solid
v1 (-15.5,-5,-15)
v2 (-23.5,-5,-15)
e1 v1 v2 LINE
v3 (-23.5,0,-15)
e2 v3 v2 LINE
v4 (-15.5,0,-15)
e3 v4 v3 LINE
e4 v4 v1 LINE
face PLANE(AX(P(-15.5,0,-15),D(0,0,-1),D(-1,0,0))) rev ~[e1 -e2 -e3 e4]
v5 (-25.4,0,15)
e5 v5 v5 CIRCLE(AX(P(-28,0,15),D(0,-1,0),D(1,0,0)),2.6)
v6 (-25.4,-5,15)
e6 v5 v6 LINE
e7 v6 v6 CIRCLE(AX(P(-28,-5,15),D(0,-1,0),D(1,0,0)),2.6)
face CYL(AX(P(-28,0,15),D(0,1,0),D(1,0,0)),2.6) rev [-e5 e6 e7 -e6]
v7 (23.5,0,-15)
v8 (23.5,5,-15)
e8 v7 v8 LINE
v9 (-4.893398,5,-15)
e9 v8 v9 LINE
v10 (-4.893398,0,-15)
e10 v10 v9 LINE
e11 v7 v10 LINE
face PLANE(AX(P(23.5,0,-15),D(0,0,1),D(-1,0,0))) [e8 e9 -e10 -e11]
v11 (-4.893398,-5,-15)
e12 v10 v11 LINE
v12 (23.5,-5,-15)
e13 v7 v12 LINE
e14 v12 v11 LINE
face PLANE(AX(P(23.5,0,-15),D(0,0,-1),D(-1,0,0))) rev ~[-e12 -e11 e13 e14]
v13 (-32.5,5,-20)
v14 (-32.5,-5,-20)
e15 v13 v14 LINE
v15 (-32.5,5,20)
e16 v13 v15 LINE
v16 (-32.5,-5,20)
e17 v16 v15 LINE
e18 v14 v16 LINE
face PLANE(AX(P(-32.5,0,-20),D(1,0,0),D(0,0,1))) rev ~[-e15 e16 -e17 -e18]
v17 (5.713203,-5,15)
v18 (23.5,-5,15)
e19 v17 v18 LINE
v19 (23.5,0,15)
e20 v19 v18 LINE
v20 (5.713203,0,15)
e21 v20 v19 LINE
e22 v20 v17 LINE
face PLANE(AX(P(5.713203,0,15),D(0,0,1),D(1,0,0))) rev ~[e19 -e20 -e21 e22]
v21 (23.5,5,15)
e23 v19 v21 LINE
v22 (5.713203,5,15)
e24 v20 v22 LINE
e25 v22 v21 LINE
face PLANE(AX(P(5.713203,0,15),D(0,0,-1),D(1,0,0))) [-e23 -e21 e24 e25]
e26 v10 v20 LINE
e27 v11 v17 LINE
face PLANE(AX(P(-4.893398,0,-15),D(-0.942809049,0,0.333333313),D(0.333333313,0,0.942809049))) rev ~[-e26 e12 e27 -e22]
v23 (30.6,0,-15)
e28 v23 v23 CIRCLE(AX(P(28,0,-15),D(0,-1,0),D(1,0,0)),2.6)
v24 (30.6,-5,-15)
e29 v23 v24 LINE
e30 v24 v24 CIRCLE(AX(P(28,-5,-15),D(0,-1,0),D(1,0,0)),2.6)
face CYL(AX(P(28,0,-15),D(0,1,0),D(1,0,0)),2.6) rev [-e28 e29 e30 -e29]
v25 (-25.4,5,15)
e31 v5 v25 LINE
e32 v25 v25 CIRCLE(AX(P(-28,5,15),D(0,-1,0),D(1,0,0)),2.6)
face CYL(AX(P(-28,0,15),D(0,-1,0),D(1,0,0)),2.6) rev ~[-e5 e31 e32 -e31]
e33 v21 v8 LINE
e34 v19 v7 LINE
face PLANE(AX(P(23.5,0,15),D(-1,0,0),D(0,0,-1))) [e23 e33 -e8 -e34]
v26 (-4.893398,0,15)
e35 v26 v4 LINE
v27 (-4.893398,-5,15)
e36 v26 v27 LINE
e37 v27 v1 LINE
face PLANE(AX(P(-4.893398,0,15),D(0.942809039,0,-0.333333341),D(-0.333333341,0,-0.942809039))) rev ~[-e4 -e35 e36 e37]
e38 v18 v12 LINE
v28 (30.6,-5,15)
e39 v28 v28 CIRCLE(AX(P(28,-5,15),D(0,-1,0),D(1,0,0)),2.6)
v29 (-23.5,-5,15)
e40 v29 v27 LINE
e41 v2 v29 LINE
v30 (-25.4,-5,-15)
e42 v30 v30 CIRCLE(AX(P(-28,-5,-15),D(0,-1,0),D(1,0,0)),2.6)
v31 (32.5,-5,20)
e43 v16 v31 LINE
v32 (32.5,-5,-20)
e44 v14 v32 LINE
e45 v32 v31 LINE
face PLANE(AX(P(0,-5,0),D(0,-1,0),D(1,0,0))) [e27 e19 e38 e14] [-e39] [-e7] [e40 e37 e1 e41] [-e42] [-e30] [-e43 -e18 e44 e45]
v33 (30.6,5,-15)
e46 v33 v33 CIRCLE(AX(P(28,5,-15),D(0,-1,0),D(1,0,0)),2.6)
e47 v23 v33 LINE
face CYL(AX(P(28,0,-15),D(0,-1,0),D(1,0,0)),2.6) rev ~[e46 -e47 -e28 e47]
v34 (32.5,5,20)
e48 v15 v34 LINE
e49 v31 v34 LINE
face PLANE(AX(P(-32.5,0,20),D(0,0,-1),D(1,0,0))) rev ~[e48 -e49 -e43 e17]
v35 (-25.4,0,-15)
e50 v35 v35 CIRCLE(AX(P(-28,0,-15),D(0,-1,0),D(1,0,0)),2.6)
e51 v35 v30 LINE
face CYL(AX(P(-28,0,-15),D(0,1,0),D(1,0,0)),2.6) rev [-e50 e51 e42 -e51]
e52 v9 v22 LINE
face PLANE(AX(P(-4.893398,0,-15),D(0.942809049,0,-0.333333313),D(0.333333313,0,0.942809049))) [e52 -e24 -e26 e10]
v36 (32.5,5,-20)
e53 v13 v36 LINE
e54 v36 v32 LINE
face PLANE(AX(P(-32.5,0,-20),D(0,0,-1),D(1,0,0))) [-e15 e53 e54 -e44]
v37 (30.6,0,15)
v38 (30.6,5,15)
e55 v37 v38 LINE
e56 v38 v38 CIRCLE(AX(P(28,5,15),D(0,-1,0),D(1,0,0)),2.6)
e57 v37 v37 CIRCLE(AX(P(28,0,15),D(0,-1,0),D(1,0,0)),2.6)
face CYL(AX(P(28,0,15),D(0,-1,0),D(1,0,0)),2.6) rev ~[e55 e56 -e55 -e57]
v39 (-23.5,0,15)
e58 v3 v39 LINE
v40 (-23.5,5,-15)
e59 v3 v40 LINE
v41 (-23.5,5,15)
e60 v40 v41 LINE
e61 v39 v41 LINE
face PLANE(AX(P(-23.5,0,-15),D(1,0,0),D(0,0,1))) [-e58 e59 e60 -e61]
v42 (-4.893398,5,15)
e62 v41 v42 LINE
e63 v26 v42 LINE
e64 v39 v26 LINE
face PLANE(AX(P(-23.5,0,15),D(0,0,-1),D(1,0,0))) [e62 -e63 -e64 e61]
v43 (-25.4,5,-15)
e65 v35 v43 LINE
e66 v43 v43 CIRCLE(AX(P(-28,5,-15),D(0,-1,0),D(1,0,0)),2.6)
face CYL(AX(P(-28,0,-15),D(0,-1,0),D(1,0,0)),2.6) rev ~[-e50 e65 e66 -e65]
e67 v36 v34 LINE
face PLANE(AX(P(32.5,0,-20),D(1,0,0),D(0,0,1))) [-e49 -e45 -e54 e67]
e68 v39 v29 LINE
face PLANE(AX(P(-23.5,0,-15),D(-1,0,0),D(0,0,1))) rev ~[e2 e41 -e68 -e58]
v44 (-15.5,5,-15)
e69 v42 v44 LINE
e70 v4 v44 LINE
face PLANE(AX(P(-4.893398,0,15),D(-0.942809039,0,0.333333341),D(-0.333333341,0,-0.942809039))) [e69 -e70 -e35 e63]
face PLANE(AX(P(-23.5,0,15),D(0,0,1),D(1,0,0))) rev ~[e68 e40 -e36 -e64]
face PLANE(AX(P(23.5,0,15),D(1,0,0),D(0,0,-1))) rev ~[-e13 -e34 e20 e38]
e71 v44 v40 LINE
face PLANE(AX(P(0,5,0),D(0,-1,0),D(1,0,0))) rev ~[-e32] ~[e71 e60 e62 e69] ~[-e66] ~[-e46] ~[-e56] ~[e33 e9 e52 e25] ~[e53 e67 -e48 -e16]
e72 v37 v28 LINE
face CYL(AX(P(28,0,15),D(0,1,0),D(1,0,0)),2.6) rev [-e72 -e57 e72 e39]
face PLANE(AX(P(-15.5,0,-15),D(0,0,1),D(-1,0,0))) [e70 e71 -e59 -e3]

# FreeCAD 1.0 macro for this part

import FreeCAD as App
import Part
import Sketcher

V = App.Vector
Q = App.Units.Quantity

doc = App.newDocument("Part")
body = doc.addObject("PartDesign::Body", "Body")

sketch1 = body.newObject("Sketcher::SketchObject", "Sketch")
sketch1.AttachmentSupport = (doc.getObject("XZ_Plane"), [""])
sketch1.MapMode = "FlatFace"
sketch1.addGeometry(Part.LineSegment(V(-32.5, 20, 0), V(-32.5, -20, 0)), False)
sketch1.addGeometry(Part.LineSegment(V(-32.5, -20, 0), V(32.5, -20, 0)), False)
sketch1.addGeometry(Part.LineSegment(V(32.5, -20, 0), V(32.5, 20, 0)), False)
sketch1.addGeometry(Part.LineSegment(V(32.5, 20, 0), V(-32.5, 20, 0)), False)
sketch1.addGeometry(Part.Circle(V(-28, -15, 0), V(0, 0, 1), 2.6), False)
sketch1.addGeometry(Part.Circle(V(28, -15, 0), V(0, 0, 1), 2.6), False)
sketch1.addGeometry(Part.LineSegment(V(-15.5, -15, 0), V(-23.5, -15, 0)), False)
sketch1.addGeometry(Part.LineSegment(V(-23.5, -15, 0), V(-23.5, 15, 0)), False)
sketch1.addGeometry(Part.LineSegment(V(-23.5, 15, 0), V(-4.9, 15, 0)), False)
sketch1.addGeometry(Part.LineSegment(V(-4.9, 15, 0), V(-15.5, -15, 0)), False)
sketch1.addGeometry(Part.Circle(V(-28, 15, 0), V(0, 0, 1), 2.6), False)
sketch1.addGeometry(Part.LineSegment(V(23.5, 15, 0), V(23.5, -15, 0)), False)
sketch1.addGeometry(Part.LineSegment(V(23.5, -15, 0), V(-4.9, -15, 0)), False)
sketch1.addGeometry(Part.LineSegment(V(-4.9, -15, 0), V(5.7, 15, 0)), False)
sketch1.addGeometry(Part.LineSegment(V(5.7, 15, 0), V(23.5, 15, 0)), False)
sketch1.addGeometry(Part.Circle(V(28, 15, 0), V(0, 0, 1), 2.6), False)
sketch1.addConstraint(Sketcher.Constraint("Coincident", 0, 2, 1, 1))
sketch1.addConstraint(Sketcher.Constraint("Coincident", 1, 2, 2, 1))
sketch1.addConstraint(Sketcher.Constraint("Coincident", 2, 2, 3, 1))
sketch1.addConstraint(Sketcher.Constraint("Coincident", 3, 2, 0, 1))
sketch1.addConstraint(Sketcher.Constraint("Coincident", 6, 2, 7, 1))
sketch1.addConstraint(Sketcher.Constraint("Coincident", 7, 2, 8, 1))
sketch1.addConstraint(Sketcher.Constraint("Coincident", 8, 2, 9, 1))
sketch1.addConstraint(Sketcher.Constraint("Coincident", 9, 2, 6, 1))
sketch1.addConstraint(Sketcher.Constraint("Coincident", 11, 2, 12, 1))
sketch1.addConstraint(Sketcher.Constraint("Coincident", 12, 2, 13, 1))
sketch1.addConstraint(Sketcher.Constraint("Coincident", 13, 2, 14, 1))
sketch1.addConstraint(Sketcher.Constraint("Coincident", 14, 2, 11, 1))
sketch1.addConstraint(Sketcher.Constraint("Vertical", 0))
sketch1.addConstraint(Sketcher.Constraint("Horizontal", 1))
sketch1.addConstraint(Sketcher.Constraint("Vertical", 2))
sketch1.addConstraint(Sketcher.Constraint("Horizontal", 3))
sketch1.addConstraint(Sketcher.Constraint("Horizontal", 6))
sketch1.addConstraint(Sketcher.Constraint("Vertical", 7))
sketch1.addConstraint(Sketcher.Constraint("Horizontal", 8))
sketch1.addConstraint(Sketcher.Constraint("Vertical", 11))
sketch1.addConstraint(Sketcher.Constraint("Horizontal", 12))
sketch1.addConstraint(Sketcher.Constraint("Horizontal", 14))
sketch1.addConstraint(Sketcher.Constraint("Equal", 4, 5))
sketch1.addConstraint(Sketcher.Constraint("Equal", 5, 10))
sketch1.addConstraint(Sketcher.Constraint("Equal", 10, 15))
sketch1.addConstraint(Sketcher.Constraint("Symmetric", 5, 3, 10, 3, -1, 1))
sketch1.addConstraint(Sketcher.Constraint("Symmetric", 4, 3, 15, 3, -1, 1))
sketch1.addConstraint(Sketcher.Constraint("Symmetric", 0, 2, 2, 2, -1, 1))
sketch1.addConstraint(Sketcher.Constraint("Symmetric", 7, 2, 11, 2, -1, 1))
sketch1.addConstraint(Sketcher.Constraint("Symmetric", 4, 3, 5, 3, -2))
sketch1.addConstraint(Sketcher.Constraint("Parallel", 9, 13))
sketch1.addConstraint(Sketcher.Constraint("Horizontal", 5, 3, 6, 2))
sketch1.addConstraint(Sketcher.Constraint("Horizontal", 15, 3, 7, 2))
sketch1.addConstraint(Sketcher.Constraint("Horizontal", 8, 2, 13, 2))
sketch1.addConstraint(Sketcher.Constraint("Vertical", 8, 2, 12, 2))
sketch1.addConstraint(Sketcher.Constraint("Diameter", 4, Q("5.2 mm")))
sketch1.addConstraint(Sketcher.Constraint("DistanceX", 1, 1, 1, 2, Q("65 mm")))
sketch1.addConstraint(Sketcher.Constraint("DistanceX", 6, 2, 6, 1, Q("8 mm")))
sketch1.addConstraint(Sketcher.Constraint("DistanceY", 0, 2, 0, 1, Q("40 mm")))
sketch1.addConstraint(Sketcher.Constraint("DistanceY", 7, 1, 7, 2, Q("30 mm")))
sketch1.addConstraint(Sketcher.Constraint("DistanceX", 4, 3, -1, 1, Q("28 mm")))
sketch1.addConstraint(Sketcher.Constraint("DistanceX", 0, 2, 6, 2, Q("9 mm")))
sketch1.addConstraint(Sketcher.Constraint("DistanceX", 8, 1, 8, 2, Q("18.606602 mm")))
pad1 = body.newObject("PartDesign::Pad", "Pad")
pad1.Profile = sketch1
pad1.Type = "TwoLengths"
pad1.Length = 5
pad1.Length2 = 5

doc.recompute()
